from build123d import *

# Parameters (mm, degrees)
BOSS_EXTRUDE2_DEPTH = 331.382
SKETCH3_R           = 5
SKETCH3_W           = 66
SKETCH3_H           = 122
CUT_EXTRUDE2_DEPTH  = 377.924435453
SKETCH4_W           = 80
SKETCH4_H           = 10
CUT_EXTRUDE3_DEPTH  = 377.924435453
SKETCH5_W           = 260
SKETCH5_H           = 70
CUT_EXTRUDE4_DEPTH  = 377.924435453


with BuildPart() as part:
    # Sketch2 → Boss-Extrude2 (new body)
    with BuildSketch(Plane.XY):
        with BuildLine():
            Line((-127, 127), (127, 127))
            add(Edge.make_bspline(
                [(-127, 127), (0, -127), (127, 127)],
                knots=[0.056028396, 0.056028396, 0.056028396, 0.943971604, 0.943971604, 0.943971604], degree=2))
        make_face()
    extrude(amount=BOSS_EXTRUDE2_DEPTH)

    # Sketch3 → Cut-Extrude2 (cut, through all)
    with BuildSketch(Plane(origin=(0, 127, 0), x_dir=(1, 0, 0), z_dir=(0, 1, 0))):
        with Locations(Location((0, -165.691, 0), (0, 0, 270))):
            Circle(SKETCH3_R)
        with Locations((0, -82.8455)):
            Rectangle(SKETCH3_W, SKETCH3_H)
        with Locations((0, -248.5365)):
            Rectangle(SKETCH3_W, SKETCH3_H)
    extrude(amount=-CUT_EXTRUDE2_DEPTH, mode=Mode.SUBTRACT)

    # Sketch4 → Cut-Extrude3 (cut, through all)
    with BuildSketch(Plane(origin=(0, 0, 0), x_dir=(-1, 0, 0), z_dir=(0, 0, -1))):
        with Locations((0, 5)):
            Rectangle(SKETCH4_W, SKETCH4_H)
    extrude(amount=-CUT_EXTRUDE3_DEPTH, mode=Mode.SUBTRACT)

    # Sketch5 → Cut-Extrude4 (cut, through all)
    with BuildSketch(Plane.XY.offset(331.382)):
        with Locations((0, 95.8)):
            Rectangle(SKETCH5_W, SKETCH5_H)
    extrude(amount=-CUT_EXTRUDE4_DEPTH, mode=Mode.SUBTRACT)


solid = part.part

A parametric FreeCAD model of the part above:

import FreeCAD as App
import Part
import Sketcher

doc = App.newDocument("Part")
body = doc.addObject("PartDesign::Body", "Body")

# Sketch on XY plane
sketch1 = body.newObject("Sketcher::SketchObject", "Sketch")
sketch1.AttachmentSupport = (doc.getObject("XY_Plane"), [""])
sketch1.MapMode = "FlatFace"
sketch1.addGeometry([
    Part.LineSegment(App.Vector(127, 127, 0), App.Vector(-127, 127, 0)),
    Part.BSplineCurve([App.Vector(-127, 127, 0), App.Vector(0, -127, 0), App.Vector(127, 127, 0)], [3, 3], [0.056028396, 0.943971604], False, 2, [1, 1, 1], False),
], False)
sketch1.addConstraint([
    Sketcher.Constraint("Block", 1),
    Sketcher.Constraint("Coincident", 0, 1, 1, 2),
    Sketcher.Constraint("Coincident", 1, 1, 0, 2),
])
pad1 = body.newObject("PartDesign::Pad", "Pad")
pad1.Profile = sketch1
pad1.Length = 331.382

# Sketch on XZ plane
sketch2 = body.newObject("Sketcher::SketchObject", "Sketch001")
sketch2.AttachmentSupport = (doc.getObject("XZ_Plane"), [""])
sketch2.MapMode = "FlatFace"
sketch2.AttachmentOffset = App.Placement(App.Vector(0, 0, -127), App.Rotation())
sketch2.addGeometry([
    Part.Circle(App.Vector(0, 165.691, 0), App.Vector(0, 0, 1), 5),  # 0
    Part.LineSegment(App.Vector(-33, 21.8455, 0), App.Vector(-33, 143.8455, 0)),  # 1
    Part.LineSegment(App.Vector(-33, 143.8455, 0), App.Vector(33, 143.8455, 0)),  # 2
    Part.LineSegment(App.Vector(33, 143.8455, 0), App.Vector(33, 21.8455, 0)),  # 3
    Part.LineSegment(App.Vector(33, 21.8455, 0), App.Vector(-33, 21.8455, 0)),  # 4
    Part.LineSegment(App.Vector(-33, 187.5365, 0), App.Vector(-33, 309.5365, 0)),  # 5
    Part.LineSegment(App.Vector(-33, 309.5365, 0), App.Vector(33, 309.5365, 0)),  # 6
    Part.LineSegment(App.Vector(33, 309.5365, 0), App.Vector(33, 187.5365, 0)),  # 7
    Part.LineSegment(App.Vector(33, 187.5365, 0), App.Vector(-33, 187.5365, 0)),  # 8
], False)
sketch2.addConstraint([
    Sketcher.Constraint("Coincident", 1, 2, 2, 1),
    Sketcher.Constraint("Coincident", 2, 2, 3, 1),
    Sketcher.Constraint("Coincident", 3, 2, 4, 1),
    Sketcher.Constraint("Coincident", 4, 2, 1, 1),
    Sketcher.Constraint("Coincident", 5, 2, 6, 1),
    Sketcher.Constraint("Coincident", 6, 2, 7, 1),
    Sketcher.Constraint("Coincident", 7, 2, 8, 1),
    Sketcher.Constraint("Coincident", 8, 2, 5, 1),
    Sketcher.Constraint("Vertical", 1),
    Sketcher.Constraint("Horizontal", 2),
    Sketcher.Constraint("Vertical", 3),
    Sketcher.Constraint("Horizontal", 4),
    Sketcher.Constraint("Vertical", 5),
    Sketcher.Constraint("Horizontal", 6),
    Sketcher.Constraint("Vertical", 7),
    Sketcher.Constraint("Horizontal", 8),
    Sketcher.Constraint("PointOnObject", 0, 3, -2),
    Sketcher.Constraint("Vertical", 4, 2, 5, 2),
    Sketcher.Constraint("Vertical", 3, 2, 6, 2),
    Sketcher.Constraint("Equal", 3, 5),
    Sketcher.Constraint("Diameter", 0, 10.0),
    Sketcher.Constraint("DistanceX", 2, 1, 2, 2, 66.0),
    Sketcher.Constraint("DistanceY", 1, 1, 1, 2, 122.0),
    Sketcher.Constraint("DistanceX", 1, 2, -1, 1, 33.0),
    Sketcher.Constraint("DistanceY", -1, 1, 0, 3, 165.691),
    Sketcher.Constraint("DistanceY", 1, 2, 5, 2, 165.691),
    Sketcher.Constraint("DistanceY", -1, 1, 1, 2, 143.8455),
])
pocket1 = body.newObject("PartDesign::Pocket", "Pocket")
pocket1.Profile = sketch2
pocket1.Type = "ThroughAll"
pocket1.Reversed = True

# Sketch on XY plane
sketch3 = body.newObject("Sketcher::SketchObject", "Sketch002")
sketch3.AttachmentSupport = (doc.getObject("XY_Plane"), [""])
sketch3.MapMode = "FlatFace"
sketch3.addGeometry([
    Part.LineSegment(App.Vector(40, 10, 0), App.Vector(40, 0, 0)),
    Part.LineSegment(App.Vector(40, 0, 0), App.Vector(-40, 0, 0)),
    Part.LineSegment(App.Vector(-40, 0, 0), App.Vector(-40, 10, 0)),
    Part.LineSegment(App.Vector(-40, 10, 0), App.Vector(40, 10, 0)),
], False)
sketch3.addConstraint([
    Sketcher.Constraint("Coincident", 0, 2, 1, 1),
    Sketcher.Constraint("Coincident", 1, 2, 2, 1),
    Sketcher.Constraint("Coincident", 2, 2, 3, 1),
    Sketcher.Constraint("Coincident", 3, 2, 0, 1),
    Sketcher.Constraint("Vertical", 0),
    Sketcher.Constraint("Horizontal", 1),
    Sketcher.Constraint("Vertical", 2),
    Sketcher.Constraint("Horizontal", 3),
    Sketcher.Constraint("Symmetric", 0, 2, 1, 2, -1, 1),
    Sketcher.Constraint("DistanceX", 1, 2, 1, 1, 80.0),
    Sketcher.Constraint("DistanceY", 0, 2, 0, 1, 10.0),
])
pocket2 = body.newObject("PartDesign::Pocket", "Pocket001")
pocket2.Profile = sketch3
pocket2.Type = "ThroughAll"
pocket2.Reversed = True

# Sketch on XY plane
sketch4 = body.newObject("Sketcher::SketchObject", "Sketch003")
sketch4.AttachmentSupport = (doc.getObject("XY_Plane"), [""])
sketch4.MapMode = "FlatFace"
sketch4.AttachmentOffset = App.Placement(App.Vector(0, 0, 331.382), App.Rotation())
sketch4.addGeometry([
    Part.LineSegment(App.Vector(-130, 130.8, 0), App.Vector(-130, 60.8, 0)),
    Part.LineSegment(App.Vector(-130, 60.8, 0), App.Vector(130, 60.8, 0)),
    Part.LineSegment(App.Vector(130, 60.8, 0), App.Vector(130, 130.8, 0)),
    Part.LineSegment(App.Vector(130, 130.8, 0), App.Vector(-130, 130.8, 0)),
], False)
sketch4.addConstraint([
    Sketcher.Constraint("Coincident", 0, 2, 1, 1),
    Sketcher.Constraint("Coincident", 1, 2, 2, 1),
    Sketcher.Constraint("Coincident", 2, 2, 3, 1),
    Sketcher.Constraint("Coincident", 3, 2, 0, 1),
    Sketcher.Constraint("Vertical", 0),
    Sketcher.Constraint("Horizontal", 1),
    Sketcher.Constraint("Vertical", 2),
    Sketcher.Constraint("Horizontal", 3),
    Sketcher.Constraint("DistanceX", 1, 1, 1, 2, 260.0),
    Sketcher.Constraint("DistanceY", 0, 2, 0, 1, 70.0),
    Sketcher.Constraint("DistanceX", 0, 2, -1, 1, 130.0),
    Sketcher.Constraint("DistanceY", -1, 1, 0, 2, 60.8),
])
pocket3 = body.newObject("PartDesign::Pocket", "Pocket002")
pocket3.Profile = sketch4
pocket3.Type = "ThroughAll"

doc.recompute()
